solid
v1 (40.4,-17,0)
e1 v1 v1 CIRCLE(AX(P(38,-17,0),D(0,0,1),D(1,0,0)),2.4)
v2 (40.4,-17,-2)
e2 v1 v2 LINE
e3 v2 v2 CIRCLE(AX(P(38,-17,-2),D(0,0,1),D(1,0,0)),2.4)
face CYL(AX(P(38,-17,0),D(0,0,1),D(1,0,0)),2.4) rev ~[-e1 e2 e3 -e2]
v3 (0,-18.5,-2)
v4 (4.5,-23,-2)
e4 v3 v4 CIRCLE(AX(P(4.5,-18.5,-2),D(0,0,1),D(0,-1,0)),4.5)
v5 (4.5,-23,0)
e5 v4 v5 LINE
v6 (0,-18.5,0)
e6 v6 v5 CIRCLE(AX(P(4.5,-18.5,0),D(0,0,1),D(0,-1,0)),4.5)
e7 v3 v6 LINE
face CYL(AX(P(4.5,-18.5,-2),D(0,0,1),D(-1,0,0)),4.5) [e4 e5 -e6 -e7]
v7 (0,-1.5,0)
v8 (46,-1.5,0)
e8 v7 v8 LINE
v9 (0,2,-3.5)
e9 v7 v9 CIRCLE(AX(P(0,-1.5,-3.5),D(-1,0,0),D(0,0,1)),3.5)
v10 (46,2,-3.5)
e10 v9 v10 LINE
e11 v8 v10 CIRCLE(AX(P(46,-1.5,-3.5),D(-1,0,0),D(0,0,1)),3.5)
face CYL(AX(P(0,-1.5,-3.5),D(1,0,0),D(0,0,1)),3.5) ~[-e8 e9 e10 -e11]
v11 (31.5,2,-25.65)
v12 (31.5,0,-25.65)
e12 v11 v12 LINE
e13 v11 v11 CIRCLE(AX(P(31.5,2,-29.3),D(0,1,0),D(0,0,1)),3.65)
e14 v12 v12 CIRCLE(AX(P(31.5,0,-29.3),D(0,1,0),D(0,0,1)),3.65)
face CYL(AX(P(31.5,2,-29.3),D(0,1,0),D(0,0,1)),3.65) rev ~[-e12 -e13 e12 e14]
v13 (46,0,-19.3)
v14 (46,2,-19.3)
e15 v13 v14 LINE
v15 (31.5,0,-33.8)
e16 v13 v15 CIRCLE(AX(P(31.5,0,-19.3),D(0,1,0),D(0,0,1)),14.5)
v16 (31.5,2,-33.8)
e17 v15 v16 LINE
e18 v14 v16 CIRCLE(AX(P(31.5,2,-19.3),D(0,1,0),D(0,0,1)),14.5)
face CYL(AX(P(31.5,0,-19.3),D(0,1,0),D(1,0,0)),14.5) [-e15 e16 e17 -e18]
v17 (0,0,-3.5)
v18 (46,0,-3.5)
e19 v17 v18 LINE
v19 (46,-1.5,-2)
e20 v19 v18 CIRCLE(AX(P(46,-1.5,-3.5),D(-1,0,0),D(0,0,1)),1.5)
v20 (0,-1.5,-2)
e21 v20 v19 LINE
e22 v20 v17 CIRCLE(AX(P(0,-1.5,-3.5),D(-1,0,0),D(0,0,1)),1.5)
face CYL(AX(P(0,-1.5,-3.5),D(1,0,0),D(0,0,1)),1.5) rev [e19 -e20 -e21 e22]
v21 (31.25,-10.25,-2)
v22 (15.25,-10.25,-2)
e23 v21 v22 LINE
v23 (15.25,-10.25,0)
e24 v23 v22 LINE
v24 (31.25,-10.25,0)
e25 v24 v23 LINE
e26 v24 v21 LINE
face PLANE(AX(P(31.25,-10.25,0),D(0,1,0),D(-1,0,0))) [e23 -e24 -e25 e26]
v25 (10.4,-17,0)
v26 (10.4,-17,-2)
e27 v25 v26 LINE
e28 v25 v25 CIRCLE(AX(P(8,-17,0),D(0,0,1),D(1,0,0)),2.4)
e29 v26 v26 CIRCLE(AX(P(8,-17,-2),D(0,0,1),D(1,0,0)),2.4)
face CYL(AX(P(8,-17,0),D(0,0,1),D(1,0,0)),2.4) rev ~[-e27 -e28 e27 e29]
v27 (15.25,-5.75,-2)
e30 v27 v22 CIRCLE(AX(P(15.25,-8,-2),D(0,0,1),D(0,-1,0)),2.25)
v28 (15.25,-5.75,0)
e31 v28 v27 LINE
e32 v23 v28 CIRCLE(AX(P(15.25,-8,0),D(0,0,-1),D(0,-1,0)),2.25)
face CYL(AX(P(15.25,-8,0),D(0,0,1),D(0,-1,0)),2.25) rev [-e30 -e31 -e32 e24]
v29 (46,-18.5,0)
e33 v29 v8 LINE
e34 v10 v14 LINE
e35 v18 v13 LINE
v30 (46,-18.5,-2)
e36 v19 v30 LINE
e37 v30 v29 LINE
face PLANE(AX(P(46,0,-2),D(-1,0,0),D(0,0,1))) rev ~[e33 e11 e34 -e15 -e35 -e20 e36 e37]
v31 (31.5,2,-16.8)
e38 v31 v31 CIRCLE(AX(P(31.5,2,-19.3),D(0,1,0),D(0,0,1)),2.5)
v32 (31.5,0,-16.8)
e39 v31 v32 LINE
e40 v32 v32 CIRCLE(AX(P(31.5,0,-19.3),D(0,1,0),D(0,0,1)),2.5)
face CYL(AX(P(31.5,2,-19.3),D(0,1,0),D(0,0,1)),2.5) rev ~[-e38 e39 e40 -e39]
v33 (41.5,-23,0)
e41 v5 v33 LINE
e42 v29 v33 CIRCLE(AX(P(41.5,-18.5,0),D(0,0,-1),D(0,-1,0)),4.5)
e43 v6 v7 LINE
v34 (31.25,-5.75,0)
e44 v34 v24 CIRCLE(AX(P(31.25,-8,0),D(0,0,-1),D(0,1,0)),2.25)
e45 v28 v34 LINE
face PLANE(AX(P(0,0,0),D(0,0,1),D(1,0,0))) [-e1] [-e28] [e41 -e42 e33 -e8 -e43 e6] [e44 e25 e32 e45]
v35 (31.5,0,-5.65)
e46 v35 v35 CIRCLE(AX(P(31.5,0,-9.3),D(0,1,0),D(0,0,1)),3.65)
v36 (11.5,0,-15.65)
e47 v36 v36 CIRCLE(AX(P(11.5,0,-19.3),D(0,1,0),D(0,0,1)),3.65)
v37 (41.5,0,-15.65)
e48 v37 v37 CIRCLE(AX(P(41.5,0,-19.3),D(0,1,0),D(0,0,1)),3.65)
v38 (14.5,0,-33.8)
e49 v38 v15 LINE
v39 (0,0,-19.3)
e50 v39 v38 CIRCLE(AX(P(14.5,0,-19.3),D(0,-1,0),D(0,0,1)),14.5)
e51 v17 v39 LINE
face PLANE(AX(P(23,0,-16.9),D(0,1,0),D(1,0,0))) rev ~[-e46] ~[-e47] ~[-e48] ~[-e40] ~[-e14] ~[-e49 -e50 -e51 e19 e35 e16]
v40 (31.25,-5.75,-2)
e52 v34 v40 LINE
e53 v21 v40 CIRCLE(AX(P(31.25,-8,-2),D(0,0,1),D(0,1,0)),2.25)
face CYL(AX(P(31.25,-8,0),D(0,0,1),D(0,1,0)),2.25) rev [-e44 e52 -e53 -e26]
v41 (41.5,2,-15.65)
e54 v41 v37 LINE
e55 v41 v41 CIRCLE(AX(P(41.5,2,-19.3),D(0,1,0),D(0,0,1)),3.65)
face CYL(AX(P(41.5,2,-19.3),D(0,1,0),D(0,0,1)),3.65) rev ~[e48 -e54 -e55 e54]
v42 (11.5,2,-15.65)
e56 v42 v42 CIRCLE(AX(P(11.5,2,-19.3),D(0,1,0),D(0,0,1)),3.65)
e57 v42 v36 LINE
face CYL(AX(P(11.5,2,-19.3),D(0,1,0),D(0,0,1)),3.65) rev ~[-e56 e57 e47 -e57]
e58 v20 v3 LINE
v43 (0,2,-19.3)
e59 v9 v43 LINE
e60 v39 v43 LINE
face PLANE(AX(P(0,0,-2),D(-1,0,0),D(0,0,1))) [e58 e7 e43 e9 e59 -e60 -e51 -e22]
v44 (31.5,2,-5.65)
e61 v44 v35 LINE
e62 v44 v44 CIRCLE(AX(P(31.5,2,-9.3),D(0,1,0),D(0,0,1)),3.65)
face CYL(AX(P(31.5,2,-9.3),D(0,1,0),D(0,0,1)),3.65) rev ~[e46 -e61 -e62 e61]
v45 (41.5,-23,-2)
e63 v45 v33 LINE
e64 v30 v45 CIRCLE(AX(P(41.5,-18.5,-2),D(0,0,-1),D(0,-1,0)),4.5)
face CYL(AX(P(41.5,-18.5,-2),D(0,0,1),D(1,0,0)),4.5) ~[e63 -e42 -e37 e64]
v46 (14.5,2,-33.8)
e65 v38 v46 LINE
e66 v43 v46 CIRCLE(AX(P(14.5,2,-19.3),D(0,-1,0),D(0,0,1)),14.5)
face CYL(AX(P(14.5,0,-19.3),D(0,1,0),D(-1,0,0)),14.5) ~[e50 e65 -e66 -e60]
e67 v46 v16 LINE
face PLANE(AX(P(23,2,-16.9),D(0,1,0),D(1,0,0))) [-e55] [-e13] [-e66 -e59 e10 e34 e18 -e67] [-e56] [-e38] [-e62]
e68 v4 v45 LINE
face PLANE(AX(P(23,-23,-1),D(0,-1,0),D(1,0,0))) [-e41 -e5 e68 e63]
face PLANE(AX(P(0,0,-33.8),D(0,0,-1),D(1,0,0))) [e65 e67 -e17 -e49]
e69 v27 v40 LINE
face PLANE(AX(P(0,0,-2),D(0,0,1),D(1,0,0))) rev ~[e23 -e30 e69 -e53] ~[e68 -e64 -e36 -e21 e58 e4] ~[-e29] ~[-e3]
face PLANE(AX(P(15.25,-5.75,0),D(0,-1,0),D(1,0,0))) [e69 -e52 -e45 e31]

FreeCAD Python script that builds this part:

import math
import FreeCAD as App
import Part
import Sketcher

V = App.Vector
Q = App.Units.Quantity


def edges_at(feature, points):
    """Names of the edges that pass closest to the given points."""
    edges = feature.Shape.Edges
    near = lambda p: min(range(len(edges)), key=lambda i: edges[i].distToShape(Part.Vertex(*p))[0])
    return sorted({f"Edge{near(p) + 1}" for p in points})


def add_polygon(sketch, points):
    """Adds a closed chain of lines whose ends are joined by coincident constraints."""
    first, n = sketch.GeometryCount, len(points)
    for a, b in zip(points, points[1:] + points[:1]):
        sketch.addGeometry(Part.LineSegment(App.Vector(*a, 0), App.Vector(*b, 0)), False)
    for i in range(n):
        sketch.addConstraint(Sketcher.Constraint("Coincident", first + i, 2, first + (i + 1) % n, 1))

doc = App.newDocument("Part")
body = doc.addObject("PartDesign::Body", "Body")

sketch1 = doc.addObject("Sketcher::SketchObject", "Sketch")
body.addObject(sketch1)
sketch1.AttachmentSupport = (doc.XZ_Plane, [""])
sketch1.MapMode = "FlatFace"
add_polygon(sketch1, [(0, -34), (0, 0), (46, 0), (46, -34)])
sketch1.addConstraint(Sketcher.Constraint("Vertical", 0))
sketch1.addConstraint(Sketcher.Constraint("Horizontal", 1))
sketch1.addConstraint(Sketcher.Constraint("Vertical", 2))
sketch1.addConstraint(Sketcher.Constraint("Horizontal", 3))
sketch1.addConstraint(Sketcher.Constraint("Coincident", 0, 2, -1, 1))
sketch1.addConstraint(Sketcher.Constraint("DistanceX", 1, 1, 1, 2, Q("46 mm")))
sketch1.addConstraint(Sketcher.Constraint("DistanceY", 0, 1, 0, 2, Q("33.8 mm")))
pad1 = doc.addObject("PartDesign::Pad", "Pad")
body.addObject(pad1)
pad1.Profile = sketch1
pad1.Length = 2
pad1.Reversed = True
doc.recompute()

fillet = doc.addObject("PartDesign::Fillet", "Fillet")
body.addObject(fillet)
fillet.Base = (pad1, edges_at(pad1, [(0, 1, -33.8), (46, 1, -33.8)]))
fillet.Radius = 14.5

sketch2 = doc.addObject("Sketcher::SketchObject", "Sketch001")
body.addObject(sketch2)
sketch2.AttachmentSupport = (doc.XZ_Plane, [""])
sketch2.MapMode = "FlatFace"
sketch2.AttachmentOffset = App.Placement(V(0, 0, -2), App.Rotation())
sketch2.addGeometry(Part.Circle(V(31.5, -19.3, 0), V(0, 0, 1), 2.5), False)
sketch2.addGeometry(Part.Circle(V(41.5, -19.3, 0), V(0, 0, 1), 3.6), False)
sketch2.addGeometry(Part.Circle(V(31.5, -29.3, 0), V(0, 0, 1), 3.6), False)
sketch2.addGeometry(Part.Circle(V(31.5, -9.3, 0), V(0, 0, 1), 3.6), False)
sketch2.addGeometry(Part.Circle(V(11.5, -19.3, 0), V(0, 0, 1), 3.6), False)
sketch2.addConstraint(Sketcher.Constraint("Equal", 1, 2))
sketch2.addConstraint(Sketcher.Constraint("Equal", 2, 3))
sketch2.addConstraint(Sketcher.Constraint("Equal", 3, 4))
sketch2.addConstraint(Sketcher.Constraint("Horizontal", 0, 3, 1, 3))
sketch2.addConstraint(Sketcher.Constraint("Horizontal", 1, 3, 4, 3))
sketch2.addConstraint(Sketcher.Constraint("Vertical", 0, 3, 2, 3))
sketch2.addConstraint(Sketcher.Constraint("Vertical", 2, 3, 3, 3))
sketch2.addConstraint(Sketcher.Constraint("Diameter", 0, Q("5 mm")))
sketch2.addConstraint(Sketcher.Constraint("Diameter", 1, Q("7.3 mm")))
sketch2.addConstraint(Sketcher.Constraint("DistanceX", 0, 3, 1, 3, Q("10 mm")))
sketch2.addConstraint(Sketcher.Constraint("DistanceY", 2, 3, 0, 3, Q("10 mm")))
sketch2.addConstraint(Sketcher.Constraint("DistanceY", 0, 3, 3, 3, Q("10 mm")))
sketch2.addConstraint(Sketcher.Constraint("DistanceX", 4, 3, 0, 3, Q("20 mm")))
sketch2.addConstraint(Sketcher.Constraint("DistanceX", -1, 1, 0, 3, Q("31.5 mm")))
sketch2.addConstraint(Sketcher.Constraint("DistanceY", 0, 3, -1, 1, Q("19.3 mm")))
pocket1 = doc.addObject("PartDesign::Pocket", "Pocket")
body.addObject(pocket1)
pocket1.Profile = sketch2
pocket1.Length = 2
pocket1.Reversed = True

sketch3 = doc.addObject("Sketcher::SketchObject", "Sketch002")
body.addObject(sketch3)
sketch3.AttachmentSupport = (doc.XZ_Plane, [""])
sketch3.MapMode = "FlatFace"
add_polygon(sketch3, [(0, 0), (0, -2), (46, -2), (46, 0)])
sketch3.addConstraint(Sketcher.Constraint("Vertical", 0))
sketch3.addConstraint(Sketcher.Constraint("Horizontal", 1))
sketch3.addConstraint(Sketcher.Constraint("Vertical", 2))
sketch3.addConstraint(Sketcher.Constraint("Horizontal", 3))
sketch3.addConstraint(Sketcher.Constraint("Coincident", 3, 2, -1, 1))
sketch3.addConstraint(Sketcher.Constraint("DistanceX", 1, 1, 1, 2, Q("46 mm")))
sketch3.addConstraint(Sketcher.Constraint("DistanceY", 0, 2, 0, 1, Q("2 mm")))
pad2 = doc.addObject("PartDesign::Pad", "Pad001")
body.addObject(pad2)
pad2.Profile = sketch3
pad2.Length = 23
doc.recompute()

fillet2 = doc.addObject("PartDesign::Fillet", "Fillet001")
body.addObject(fillet2)
fillet2.Base = (pad2, edges_at(pad2, [(0, -23, -1), (46, -23, -1)]))
fillet2.Radius = 4.5
doc.recompute()

fillet3 = doc.addObject("PartDesign::Fillet", "Fillet002")
body.addObject(fillet3)
fillet3.Base = (fillet2, edges_at(fillet2, [(23, 2, 0)]))
fillet3.Radius = 3.5
doc.recompute()

fillet4 = doc.addObject("PartDesign::Fillet", "Fillet003")
body.addObject(fillet4)
fillet4.Base = (fillet3, edges_at(fillet3, [(23, 0, -2)]))
fillet4.Radius = 1.5

sketch4 = doc.addObject("Sketcher::SketchObject", "Sketch003")
body.addObject(sketch4)
sketch4.AttachmentSupport = (doc.XY_Plane, [""])
sketch4.MapMode = "FlatFace"
sketch4.addGeometry(Part.Circle(V(8, -17, 0), V(0, 0, 1), 2.4), False)
sketch4.addGeometry(Part.Circle(V(38, -17, 0), V(0, 0, 1), 2.4), False)
sketch4.addGeometry(Part.LineSegment(V(31.2, -5.8, 0), V(15.2, -5.8, 0)), False)
sketch4.addGeometry(Part.ArcOfCircle(Part.Circle(V(15.2, -8, 0), V(0, 0, 1), 2.2), math.radians(90), math.radians(270)), False)
sketch4.addGeometry(Part.LineSegment(V(15.2, -10.2, 0), V(31.2, -10.2, 0)), False)
sketch4.addGeometry(Part.ArcOfCircle(Part.Circle(V(31.2, -8, 0), V(0, 0, 1), 2.2), math.radians(-90), math.radians(90)), False)
sketch4.addConstraint(Sketcher.Constraint("Tangent", 2, 2, 3, 1))
sketch4.addConstraint(Sketcher.Constraint("Tangent", 3, 2, 4, 1))
sketch4.addConstraint(Sketcher.Constraint("Tangent", 4, 2, 5, 1))
sketch4.addConstraint(Sketcher.Constraint("Tangent", 5, 2, 2, 1))
sketch4.addConstraint(Sketcher.Constraint("Horizontal", 2))
sketch4.addConstraint(Sketcher.Constraint("Horizontal", 4))
sketch4.addConstraint(Sketcher.Constraint("Equal", 0, 1))
sketch4.addConstraint(Sketcher.Constraint("Horizontal", 0, 3, 1, 3))
sketch4.addConstraint(Sketcher.Constraint("Diameter", 0, Q("4.8 mm")))
sketch4.addConstraint(Sketcher.Constraint("DistanceX", 2, 2, 2, 1, Q("16 mm")))
sketch4.addConstraint(Sketcher.Constraint("Radius", 3, Q("2.25 mm")))
sketch4.addConstraint(Sketcher.Constraint("DistanceX", -1, 1, 0, 3, Q("8 mm")))
sketch4.addConstraint(Sketcher.Constraint("DistanceY", 0, 3, -1, 1, Q("17 mm")))
sketch4.addConstraint(Sketcher.Constraint("DistanceX", -1, 1, 1, 3, Q("38 mm")))
sketch4.addConstraint(Sketcher.Constraint("DistanceY", 3, 3, -1, 1, Q("8 mm")))
sketch4.addConstraint(Sketcher.Constraint("DistanceX", -1, 1, 3, 3, Q("15.25 mm")))
pocket2 = doc.addObject("PartDesign::Pocket", "Pocket001")
body.addObject(pocket2)
pocket2.Profile = sketch4
pocket2.Length = 25

doc.recompute()
